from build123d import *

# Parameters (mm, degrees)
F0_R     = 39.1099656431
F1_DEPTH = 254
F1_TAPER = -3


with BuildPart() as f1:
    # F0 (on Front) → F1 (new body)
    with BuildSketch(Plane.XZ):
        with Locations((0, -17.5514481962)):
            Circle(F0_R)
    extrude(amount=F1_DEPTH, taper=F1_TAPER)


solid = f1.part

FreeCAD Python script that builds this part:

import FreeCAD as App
import Part
import Sketcher

doc = App.newDocument("Part")
params = doc.addObject("Spreadsheet::Sheet", "Params")
for row, (alias, value) in enumerate([
    ("pad1_length", "10 in"),
    ("pad1_taper", "3 deg"),
], start=1):
    params.set(f"A{row}", alias)
    params.set(f"B{row}", "=" + value)
    params.setAlias(f"B{row}", alias)

body = doc.addObject("PartDesign::Body", "Body")

# Sketch on XZ plane
sketch1 = doc.addObject("Sketcher::SketchObject", "Sketch")
body.addObject(sketch1)
sketch1.AttachmentSupport = (doc.XZ_Plane, [""])
sketch1.MapMode = "FlatFace"
sketch1.addGeometry(Part.Circle(App.Vector(0, -17.551448, 0), App.Vector(0, 0, 1), 39.109966), False)
sketch1.addConstraint(Sketcher.Constraint("PointOnObject", 0, 3, -2))
sketch1.addConstraint(Sketcher.Constraint("Diameter", 0, 78.219931))
sketch1.addConstraint(Sketcher.Constraint("DistanceY", 0, 3, -1, 1, 17.551448))
pad1 = doc.addObject("PartDesign::Pad", "Pad")
body.addObject(pad1)
pad1.Profile = sketch1
pad1.setExpression("Length", "Params.pad1_length")
pad1.setExpression("TaperAngle", "Params.pad1_taper")

doc.recompute()
